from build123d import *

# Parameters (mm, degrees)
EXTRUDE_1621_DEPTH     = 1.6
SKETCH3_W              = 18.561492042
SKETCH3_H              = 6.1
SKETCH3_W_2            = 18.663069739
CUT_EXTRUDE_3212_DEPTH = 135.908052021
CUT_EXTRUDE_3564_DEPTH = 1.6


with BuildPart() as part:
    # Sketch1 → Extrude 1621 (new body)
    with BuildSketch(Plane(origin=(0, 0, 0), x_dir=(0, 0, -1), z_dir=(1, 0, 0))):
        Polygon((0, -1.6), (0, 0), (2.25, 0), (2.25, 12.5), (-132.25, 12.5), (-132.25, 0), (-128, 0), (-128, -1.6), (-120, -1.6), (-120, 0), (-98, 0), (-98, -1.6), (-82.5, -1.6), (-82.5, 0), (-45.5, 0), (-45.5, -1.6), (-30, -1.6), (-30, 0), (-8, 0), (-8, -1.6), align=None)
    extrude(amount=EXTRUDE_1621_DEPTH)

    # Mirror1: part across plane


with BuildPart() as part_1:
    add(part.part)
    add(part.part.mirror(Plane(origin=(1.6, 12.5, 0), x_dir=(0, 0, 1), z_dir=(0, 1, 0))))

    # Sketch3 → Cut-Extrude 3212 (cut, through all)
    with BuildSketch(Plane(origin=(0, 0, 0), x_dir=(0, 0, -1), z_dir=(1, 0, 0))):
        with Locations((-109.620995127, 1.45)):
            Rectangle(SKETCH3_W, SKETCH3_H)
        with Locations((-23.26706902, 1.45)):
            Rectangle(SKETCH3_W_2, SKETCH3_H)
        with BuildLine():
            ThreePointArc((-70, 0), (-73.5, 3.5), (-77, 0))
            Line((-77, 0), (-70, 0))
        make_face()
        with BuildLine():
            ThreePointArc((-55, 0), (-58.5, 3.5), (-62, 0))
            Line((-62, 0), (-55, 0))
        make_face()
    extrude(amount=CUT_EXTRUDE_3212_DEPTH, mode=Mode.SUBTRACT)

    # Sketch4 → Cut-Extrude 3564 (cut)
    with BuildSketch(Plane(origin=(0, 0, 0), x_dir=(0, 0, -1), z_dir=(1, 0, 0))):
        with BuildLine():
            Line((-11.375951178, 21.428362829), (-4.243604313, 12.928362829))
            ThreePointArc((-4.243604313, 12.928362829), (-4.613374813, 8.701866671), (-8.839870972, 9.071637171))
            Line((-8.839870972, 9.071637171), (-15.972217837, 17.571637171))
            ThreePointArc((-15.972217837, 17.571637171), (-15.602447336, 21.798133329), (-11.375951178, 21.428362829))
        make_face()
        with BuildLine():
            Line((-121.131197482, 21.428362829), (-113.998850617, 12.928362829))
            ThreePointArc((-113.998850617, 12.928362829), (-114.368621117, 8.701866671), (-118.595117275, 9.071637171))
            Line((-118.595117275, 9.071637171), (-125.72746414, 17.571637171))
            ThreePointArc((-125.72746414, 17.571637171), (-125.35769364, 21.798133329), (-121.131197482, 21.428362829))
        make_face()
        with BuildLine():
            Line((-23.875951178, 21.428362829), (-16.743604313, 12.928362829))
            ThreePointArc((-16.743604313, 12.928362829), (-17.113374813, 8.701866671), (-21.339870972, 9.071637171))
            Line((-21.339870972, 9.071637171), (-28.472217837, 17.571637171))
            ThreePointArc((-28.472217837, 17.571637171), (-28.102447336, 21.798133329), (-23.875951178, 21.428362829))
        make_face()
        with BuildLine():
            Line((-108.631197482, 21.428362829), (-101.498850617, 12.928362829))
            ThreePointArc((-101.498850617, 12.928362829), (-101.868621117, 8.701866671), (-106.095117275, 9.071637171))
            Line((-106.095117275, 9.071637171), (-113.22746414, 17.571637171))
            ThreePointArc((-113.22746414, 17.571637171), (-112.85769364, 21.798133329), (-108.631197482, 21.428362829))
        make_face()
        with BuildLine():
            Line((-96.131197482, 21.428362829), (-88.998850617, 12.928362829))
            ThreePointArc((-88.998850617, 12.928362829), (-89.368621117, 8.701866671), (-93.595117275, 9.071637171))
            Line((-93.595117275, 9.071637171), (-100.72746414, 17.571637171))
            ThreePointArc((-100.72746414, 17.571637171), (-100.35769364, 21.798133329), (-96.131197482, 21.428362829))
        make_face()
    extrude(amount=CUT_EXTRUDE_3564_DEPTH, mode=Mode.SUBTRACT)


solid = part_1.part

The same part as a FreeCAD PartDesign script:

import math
import FreeCAD as App
import Part
import Sketcher
Q = App.Units.Quantity


def add_polygon(sketch, points):
    """Adds a closed chain of lines whose ends are joined by coincident constraints."""
    first, n = sketch.GeometryCount, len(points)
    for a, b in zip(points, points[1:] + points[:1]):
        sketch.addGeometry(Part.LineSegment(App.Vector(*a, 0), App.Vector(*b, 0)), False)
    for i in range(n):
        sketch.addConstraint(Sketcher.Constraint("Coincident", first + i, 2, first + (i + 1) % n, 1))

doc = App.newDocument("Part")
params = doc.addObject("Spreadsheet::Sheet", "Params")
for row, (alias, value) in enumerate([
    ("sketch1_height", "8 mm"),
    ("sketch1_height2", "22 mm"),
    ("sketch1_height3", "37 mm"),
    ("sketch1_width", "1.6 mm"),
    ("sketch1_width2", "12.5 mm"),
    ("pad1_length", "1.6 mm"),
    ("sketch2_radius", "3.5 mm"),
    ("sketch2_width", "6.1 mm"),
    ("sketch3_radius", "3 mm"),
    ("pocket2_length", "1.6 mm"),
], start=1):
    params.set(f"A{row}", alias)
    params.set(f"B{row}", "=" + value)
    params.setAlias(f"B{row}", alias)

body = doc.addObject("PartDesign::Body", "Body")

# Sketch on YZ plane
sketch1 = doc.addObject("Sketcher::SketchObject", "Sketch")
body.addObject(sketch1)
sketch1.AttachmentSupport = (doc.YZ_Plane, [""])
sketch1.MapMode = "FlatFace"
add_polygon(sketch1, [(-1.6, 0), (0, 0), (0, -2.25), (12.5, -2.25), (12.5, 132.25), (0, 132.25), (0, 128), (-1.6, 128), (-1.6, 120), (0, 120), (0, 98), (-1.6, 98), (-1.6, 82.5), (0, 82.5), (0, 45.5), (-1.6, 45.5), (-1.6, 30), (0, 30), (0, 8), (-1.6, 8)])  # lines 0-19
sketch1.addConstraint([
    Sketcher.Constraint("Horizontal", 0),
    Sketcher.Constraint("Vertical", 1),
    Sketcher.Constraint("Horizontal", 2),
    Sketcher.Constraint("Vertical", 3),
    Sketcher.Constraint("Horizontal", 4),
    Sketcher.Constraint("Vertical", 5),
    Sketcher.Constraint("Horizontal", 6),
    Sketcher.Constraint("Vertical", 7),
    Sketcher.Constraint("Horizontal", 8),
    Sketcher.Constraint("Vertical", 9),
    Sketcher.Constraint("Horizontal", 10),
    Sketcher.Constraint("Vertical", 11),
    Sketcher.Constraint("Horizontal", 12),
    Sketcher.Constraint("Vertical", 13),
    Sketcher.Constraint("Horizontal", 14),
    Sketcher.Constraint("Vertical", 15),
    Sketcher.Constraint("Horizontal", 16),
    Sketcher.Constraint("Vertical", 17),
    Sketcher.Constraint("Horizontal", 18),
    Sketcher.Constraint("Vertical", 19),
    Sketcher.Constraint("Coincident", 0, 2, -1, 1),
    Sketcher.Constraint("PointOnObject", 4, 2, -2),
    Sketcher.Constraint("PointOnObject", 8, 2, -2),
    Sketcher.Constraint("PointOnObject", 12, 2, -2),
    Sketcher.Constraint("PointOnObject", 16, 2, -2),
    Sketcher.Constraint("Vertical", 7, 2, 10, 2),
    Sketcher.Constraint("Vertical", 11, 2, 14, 2),
    Sketcher.Constraint("Vertical", 15, 2, 18, 2),
    Sketcher.Constraint("Equal", 11, 15),
    Sketcher.Constraint("Equal", 9, 17),
    Sketcher.Constraint("Equal", 7, 19),
    Sketcher.Constraint("DistanceY", 7, 2, 7, 1, 8.0),
    Sketcher.Constraint("DistanceY", 9, 2, 9, 1, 22.0),
    Sketcher.Constraint("DistanceY", 13, 2, 13, 1, 37.0),
    Sketcher.Constraint("DistanceX", 0, 1, 0, 2, 1.6),
    Sketcher.Constraint("DistanceX", 2, 1, 2, 2, 12.5),
    Sketcher.Constraint("DistanceY", 3, 1, 3, 2, 134.5),
    Sketcher.Constraint("DistanceY", 11, 2, 11, 1, 15.5),
    Sketcher.Constraint("DistanceY", 1, 2, 1, 1, 2.25),
])
sketch1.setExpression("Constraints[51]", "Params.sketch1_height")
sketch1.setExpression("Constraints[52]", "Params.sketch1_height2")
sketch1.setExpression("Constraints[53]", "Params.sketch1_height3")
sketch1.setExpression("Constraints[54]", "Params.sketch1_width")
sketch1.setExpression("Constraints[55]", "Params.sketch1_width2")
pad1 = doc.addObject("PartDesign::Pad", "Pad")
body.addObject(pad1)
pad1.Profile = sketch1
pad1.setExpression("Length", "Params.pad1_length")
body2 = doc.addObject("PartDesign::Body", "Body001")
doc.recompute()

body2.BaseFeature = body
doc.recompute()

mirroring = doc.addObject("Part::Mirroring", "Mirroring")
mirroring.Source = body
mirroring.Base = App.Vector(1.6, 12.5, 0)
mirroring.Normal = App.Vector(0, 1, 0)
body3 = doc.addObject("PartDesign::Body", "Body002")
body3.BaseFeature = mirroring
boolean = doc.addObject("PartDesign::Boolean", "Boolean")
body2.addObject(boolean)
boolean.Type = "Fuse"
boolean.addObjects([body3])
doc.recompute()

# Sketch on YZ plane
sketch2 = doc.addObject("Sketcher::SketchObject", "Sketch001")
body2.addObject(sketch2)
sketch2.AttachmentSupport = (doc.getObject("YZ_Plane001"), [""])
sketch2.MapMode = "FlatFace"
add_polygon(sketch2, [(4.5, 118.901741), (-1.6, 118.901741), (-1.6, 100.340249), (4.5, 100.340249)])  # lines 0-3
add_polygon(sketch2, [(4.5, 32.598604), (-1.6, 32.598604), (-1.6, 13.935534), (4.5, 13.935534)])  # lines 4-7
sketch2.addGeometry(Part.ArcOfCircle(Part.Circle(App.Vector(0, 73.5, 0), App.Vector(0, 0, 1), 3.5), math.radians(-90), math.radians(90)), False)  # 8
sketch2.addGeometry(Part.LineSegment(App.Vector(0, 77, 0), App.Vector(0, 70, 0)), False)  # 9
sketch2.addGeometry(Part.ArcOfCircle(Part.Circle(App.Vector(0, 58.5, 0), App.Vector(0, 0, 1), 3.5), math.radians(-90), math.radians(90)), False)  # 10
sketch2.addGeometry(Part.LineSegment(App.Vector(0, 62, 0), App.Vector(0, 55, 0)), False)  # 11
sketch2.addConstraint([
    Sketcher.Constraint("Coincident", 8, 1, 9, 2),
    Sketcher.Constraint("Coincident", 9, 1, 8, 2),
    Sketcher.Constraint("Coincident", 10, 1, 11, 2),
    Sketcher.Constraint("Coincident", 11, 1, 10, 2),
    Sketcher.Constraint("Horizontal", 0),
    Sketcher.Constraint("Vertical", 1),
    Sketcher.Constraint("Horizontal", 2),
    Sketcher.Constraint("Vertical", 3),
    Sketcher.Constraint("Horizontal", 4),
    Sketcher.Constraint("Vertical", 5),
    Sketcher.Constraint("Horizontal", 6),
    Sketcher.Constraint("Vertical", 7),
    Sketcher.Constraint("Vertical", 9),
    Sketcher.Constraint("Vertical", 11),
    Sketcher.Constraint("Equal", 8, 10),
    Sketcher.Constraint("PointOnObject", 8, 3, -2),
    Sketcher.Constraint("PointOnObject", 10, 3, -2),
    Sketcher.Constraint("PointOnObject", 8, 1, -2),
    Sketcher.Constraint("PointOnObject", 10, 1, -2),
    Sketcher.Constraint("Vertical", 1, 2, 4, 2),
    Sketcher.Constraint("Vertical", 3, 2, 6, 2),
    Sketcher.Constraint("Radius", 8, 3.5),
    Sketcher.Constraint("DistanceX", 0, 2, 0, 1, 6.1),
    Sketcher.Constraint("DistanceY", -1, 1, 8, 1, 70.0),
    Sketcher.Constraint("DistanceY", -1, 1, 10, 1, 55.0),
    Sketcher.Constraint("DistanceX", 0, 2, -1, 1, 1.6),
    Sketcher.Constraint("DistanceY", 5, 2, 5, 1, 18.66307),
    Sketcher.Constraint("DistanceY", 1, 2, 1, 1, 18.561492),
    Sketcher.Constraint("DistanceY", -1, 1, 0, 2, 118.901741),
    Sketcher.Constraint("DistanceY", -1, 1, 4, 2, 32.598604),
])
sketch2.setExpression("Constraints[29]", "Params.sketch2_radius")
sketch2.setExpression("Constraints[30]", "Params.sketch2_width")
pocket1 = doc.addObject("PartDesign::Pocket", "Pocket")
body2.addObject(pocket1)
pocket1.Profile = sketch2
pocket1.Type = "ThroughAll"
pocket1.Reversed = True

# Sketch on YZ plane
sketch3 = doc.addObject("Sketcher::SketchObject", "Sketch002")
body2.addObject(sketch3)
sketch3.AttachmentSupport = (doc.getObject("YZ_Plane001"), [""])
sketch3.MapMode = "FlatFace"
sketch3.addGeometry([
    Part.LineSegment(App.Vector(12.928363, 4.243604, 0), App.Vector(21.428363, 11.375951, 0)),  # 0
    Part.ArcOfCircle(Part.Circle(App.Vector(19.5, 13.674085, 0), App.Vector(0, 0, 1), 3), math.radians(-50), math.radians(130)),  # 1
    Part.LineSegment(App.Vector(17.571637, 15.972218, 0), App.Vector(9.071637, 8.839871, 0)),  # 2
    Part.ArcOfCircle(Part.Circle(App.Vector(11, 6.541738, 0), App.Vector(0, 0, 1), 3), math.radians(130), math.radians(310)),  # 3
    Part.LineSegment(App.Vector(12.928363, 113.998851, 0), App.Vector(21.428363, 121.131197, 0)),  # 4
    Part.ArcOfCircle(Part.Circle(App.Vector(19.5, 123.429331, 0), App.Vector(0, 0, 1), 3), math.radians(-50), math.radians(130)),  # 5
    Part.LineSegment(App.Vector(17.571637, 125.727464, 0), App.Vector(9.071637, 118.595117, 0)),  # 6
    Part.ArcOfCircle(Part.Circle(App.Vector(11, 116.296984, 0), App.Vector(0, 0, 1), 3), math.radians(130), math.radians(310)),  # 7
    Part.LineSegment(App.Vector(12.928363, 16.743604, 0), App.Vector(21.428363, 23.875951, 0)),  # 8
    Part.ArcOfCircle(Part.Circle(App.Vector(19.5, 26.174085, 0), App.Vector(0, 0, 1), 3), math.radians(-50), math.radians(130)),  # 9
    Part.LineSegment(App.Vector(17.571637, 28.472218, 0), App.Vector(9.071637, 21.339871, 0)),  # 10
    Part.ArcOfCircle(Part.Circle(App.Vector(11, 19.041738, 0), App.Vector(0, 0, 1), 3), math.radians(130), math.radians(310)),  # 11
    Part.LineSegment(App.Vector(12.928363, 101.498851, 0), App.Vector(21.428363, 108.631197, 0)),  # 12
    Part.ArcOfCircle(Part.Circle(App.Vector(19.5, 110.929331, 0), App.Vector(0, 0, 1), 3), math.radians(-50), math.radians(130)),  # 13
    Part.LineSegment(App.Vector(17.571637, 113.227464, 0), App.Vector(9.071637, 106.095117, 0)),  # 14
    Part.ArcOfCircle(Part.Circle(App.Vector(11, 103.796984, 0), App.Vector(0, 0, 1), 3), math.radians(130), math.radians(310)),  # 15
    Part.LineSegment(App.Vector(12.928363, 88.998851, 0), App.Vector(21.428363, 96.131197, 0)),  # 16
    Part.ArcOfCircle(Part.Circle(App.Vector(19.5, 98.429331, 0), App.Vector(0, 0, 1), 3), math.radians(-50), math.radians(130)),  # 17
    Part.LineSegment(App.Vector(17.571637, 100.727464, 0), App.Vector(9.071637, 93.595117, 0)),  # 18
    Part.ArcOfCircle(Part.Circle(App.Vector(11, 91.296984, 0), App.Vector(0, 0, 1), 3), math.radians(130), math.radians(310)),  # 19
], False)
sketch3.addConstraint([
    Sketcher.Constraint("Tangent", 0, 2, 1, 1),
    Sketcher.Constraint("Tangent", 1, 2, 2, 1),
    Sketcher.Constraint("Tangent", 2, 2, 3, 1),
    Sketcher.Constraint("Tangent", 3, 2, 0, 1),
    Sketcher.Constraint("Tangent", 4, 2, 5, 1),
    Sketcher.Constraint("Tangent", 5, 2, 6, 1),
    Sketcher.Constraint("Tangent", 6, 2, 7, 1),
    Sketcher.Constraint("Tangent", 7, 2, 4, 1),
    Sketcher.Constraint("Tangent", 8, 2, 9, 1),
    Sketcher.Constraint("Tangent", 9, 2, 10, 1),
    Sketcher.Constraint("Tangent", 10, 2, 11, 1),
    Sketcher.Constraint("Tangent", 11, 2, 8, 1),
    Sketcher.Constraint("Tangent", 12, 2, 13, 1),
    Sketcher.Constraint("Tangent", 13, 2, 14, 1),
    Sketcher.Constraint("Tangent", 14, 2, 15, 1),
    Sketcher.Constraint("Tangent", 15, 2, 12, 1),
    Sketcher.Constraint("Tangent", 16, 2, 17, 1),
    Sketcher.Constraint("Tangent", 17, 2, 18, 1),
    Sketcher.Constraint("Tangent", 18, 2, 19, 1),
    Sketcher.Constraint("Tangent", 19, 2, 16, 1),
    Sketcher.Constraint("Equal", 1, 3),
    Sketcher.Constraint("Equal", 3, 5),
    Sketcher.Constraint("Equal", 5, 7),
    Sketcher.Constraint("Equal", 7, 9),
    Sketcher.Constraint("Equal", 9, 11),
    Sketcher.Constraint("Equal", 11, 13),
    Sketcher.Constraint("Equal", 13, 15),
    Sketcher.Constraint("Equal", 15, 17),
    Sketcher.Constraint("Equal", 17, 19),
    Sketcher.Constraint("Parallel", 2, 4),
    Sketcher.Constraint("Parallel", 6, 8),
    Sketcher.Constraint("Parallel", 10, 12),
    Sketcher.Constraint("Parallel", 14, 16),
    Sketcher.Constraint("Vertical", 1, 3, 5, 3),
    Sketcher.Constraint("Vertical", 3, 3, 7, 3),
    Sketcher.Constraint("Vertical", 5, 3, 9, 3),
    Sketcher.Constraint("Vertical", 7, 3, 11, 3),
    Sketcher.Constraint("Vertical", 9, 3, 13, 3),
    Sketcher.Constraint("Vertical", 11, 3, 15, 3),
    Sketcher.Constraint("Vertical", 13, 3, 17, 3),
    Sketcher.Constraint("Vertical", 15, 3, 19, 3),
    Sketcher.Constraint("Radius", 1, 3.0),
    Sketcher.Constraint("Angle", 0, Q("40 deg")),
    Sketcher.Constraint("DistanceX", -1, 1, 3, 3, 11.0),
    Sketcher.Constraint("DistanceY", 17, 3, 5, 3, 25.0),
    Sketcher.Constraint("DistanceX", -1, 1, 1, 3, 19.5),
    Sketcher.Constraint("DistanceY", 1, 3, 9, 3, 12.5),
    Sketcher.Constraint("DistanceY", 13, 3, 5, 3, 12.5),
    Sketcher.Constraint("DistanceY", 1, 3, 7, 3, 102.622899),
    Sketcher.Constraint("DistanceY", -1, 1, 5, 3, 123.429331),
])
sketch3.setExpression("Constraints[41]", "Params.sketch3_radius")
pocket2 = doc.addObject("PartDesign::Pocket", "Pocket001")
body2.addObject(pocket2)
pocket2.Profile = sketch3
pocket2.setExpression("Length", "Params.pocket2_length")
pocket2.Reversed = True
mirroring.Visibility = False

doc.recompute()
